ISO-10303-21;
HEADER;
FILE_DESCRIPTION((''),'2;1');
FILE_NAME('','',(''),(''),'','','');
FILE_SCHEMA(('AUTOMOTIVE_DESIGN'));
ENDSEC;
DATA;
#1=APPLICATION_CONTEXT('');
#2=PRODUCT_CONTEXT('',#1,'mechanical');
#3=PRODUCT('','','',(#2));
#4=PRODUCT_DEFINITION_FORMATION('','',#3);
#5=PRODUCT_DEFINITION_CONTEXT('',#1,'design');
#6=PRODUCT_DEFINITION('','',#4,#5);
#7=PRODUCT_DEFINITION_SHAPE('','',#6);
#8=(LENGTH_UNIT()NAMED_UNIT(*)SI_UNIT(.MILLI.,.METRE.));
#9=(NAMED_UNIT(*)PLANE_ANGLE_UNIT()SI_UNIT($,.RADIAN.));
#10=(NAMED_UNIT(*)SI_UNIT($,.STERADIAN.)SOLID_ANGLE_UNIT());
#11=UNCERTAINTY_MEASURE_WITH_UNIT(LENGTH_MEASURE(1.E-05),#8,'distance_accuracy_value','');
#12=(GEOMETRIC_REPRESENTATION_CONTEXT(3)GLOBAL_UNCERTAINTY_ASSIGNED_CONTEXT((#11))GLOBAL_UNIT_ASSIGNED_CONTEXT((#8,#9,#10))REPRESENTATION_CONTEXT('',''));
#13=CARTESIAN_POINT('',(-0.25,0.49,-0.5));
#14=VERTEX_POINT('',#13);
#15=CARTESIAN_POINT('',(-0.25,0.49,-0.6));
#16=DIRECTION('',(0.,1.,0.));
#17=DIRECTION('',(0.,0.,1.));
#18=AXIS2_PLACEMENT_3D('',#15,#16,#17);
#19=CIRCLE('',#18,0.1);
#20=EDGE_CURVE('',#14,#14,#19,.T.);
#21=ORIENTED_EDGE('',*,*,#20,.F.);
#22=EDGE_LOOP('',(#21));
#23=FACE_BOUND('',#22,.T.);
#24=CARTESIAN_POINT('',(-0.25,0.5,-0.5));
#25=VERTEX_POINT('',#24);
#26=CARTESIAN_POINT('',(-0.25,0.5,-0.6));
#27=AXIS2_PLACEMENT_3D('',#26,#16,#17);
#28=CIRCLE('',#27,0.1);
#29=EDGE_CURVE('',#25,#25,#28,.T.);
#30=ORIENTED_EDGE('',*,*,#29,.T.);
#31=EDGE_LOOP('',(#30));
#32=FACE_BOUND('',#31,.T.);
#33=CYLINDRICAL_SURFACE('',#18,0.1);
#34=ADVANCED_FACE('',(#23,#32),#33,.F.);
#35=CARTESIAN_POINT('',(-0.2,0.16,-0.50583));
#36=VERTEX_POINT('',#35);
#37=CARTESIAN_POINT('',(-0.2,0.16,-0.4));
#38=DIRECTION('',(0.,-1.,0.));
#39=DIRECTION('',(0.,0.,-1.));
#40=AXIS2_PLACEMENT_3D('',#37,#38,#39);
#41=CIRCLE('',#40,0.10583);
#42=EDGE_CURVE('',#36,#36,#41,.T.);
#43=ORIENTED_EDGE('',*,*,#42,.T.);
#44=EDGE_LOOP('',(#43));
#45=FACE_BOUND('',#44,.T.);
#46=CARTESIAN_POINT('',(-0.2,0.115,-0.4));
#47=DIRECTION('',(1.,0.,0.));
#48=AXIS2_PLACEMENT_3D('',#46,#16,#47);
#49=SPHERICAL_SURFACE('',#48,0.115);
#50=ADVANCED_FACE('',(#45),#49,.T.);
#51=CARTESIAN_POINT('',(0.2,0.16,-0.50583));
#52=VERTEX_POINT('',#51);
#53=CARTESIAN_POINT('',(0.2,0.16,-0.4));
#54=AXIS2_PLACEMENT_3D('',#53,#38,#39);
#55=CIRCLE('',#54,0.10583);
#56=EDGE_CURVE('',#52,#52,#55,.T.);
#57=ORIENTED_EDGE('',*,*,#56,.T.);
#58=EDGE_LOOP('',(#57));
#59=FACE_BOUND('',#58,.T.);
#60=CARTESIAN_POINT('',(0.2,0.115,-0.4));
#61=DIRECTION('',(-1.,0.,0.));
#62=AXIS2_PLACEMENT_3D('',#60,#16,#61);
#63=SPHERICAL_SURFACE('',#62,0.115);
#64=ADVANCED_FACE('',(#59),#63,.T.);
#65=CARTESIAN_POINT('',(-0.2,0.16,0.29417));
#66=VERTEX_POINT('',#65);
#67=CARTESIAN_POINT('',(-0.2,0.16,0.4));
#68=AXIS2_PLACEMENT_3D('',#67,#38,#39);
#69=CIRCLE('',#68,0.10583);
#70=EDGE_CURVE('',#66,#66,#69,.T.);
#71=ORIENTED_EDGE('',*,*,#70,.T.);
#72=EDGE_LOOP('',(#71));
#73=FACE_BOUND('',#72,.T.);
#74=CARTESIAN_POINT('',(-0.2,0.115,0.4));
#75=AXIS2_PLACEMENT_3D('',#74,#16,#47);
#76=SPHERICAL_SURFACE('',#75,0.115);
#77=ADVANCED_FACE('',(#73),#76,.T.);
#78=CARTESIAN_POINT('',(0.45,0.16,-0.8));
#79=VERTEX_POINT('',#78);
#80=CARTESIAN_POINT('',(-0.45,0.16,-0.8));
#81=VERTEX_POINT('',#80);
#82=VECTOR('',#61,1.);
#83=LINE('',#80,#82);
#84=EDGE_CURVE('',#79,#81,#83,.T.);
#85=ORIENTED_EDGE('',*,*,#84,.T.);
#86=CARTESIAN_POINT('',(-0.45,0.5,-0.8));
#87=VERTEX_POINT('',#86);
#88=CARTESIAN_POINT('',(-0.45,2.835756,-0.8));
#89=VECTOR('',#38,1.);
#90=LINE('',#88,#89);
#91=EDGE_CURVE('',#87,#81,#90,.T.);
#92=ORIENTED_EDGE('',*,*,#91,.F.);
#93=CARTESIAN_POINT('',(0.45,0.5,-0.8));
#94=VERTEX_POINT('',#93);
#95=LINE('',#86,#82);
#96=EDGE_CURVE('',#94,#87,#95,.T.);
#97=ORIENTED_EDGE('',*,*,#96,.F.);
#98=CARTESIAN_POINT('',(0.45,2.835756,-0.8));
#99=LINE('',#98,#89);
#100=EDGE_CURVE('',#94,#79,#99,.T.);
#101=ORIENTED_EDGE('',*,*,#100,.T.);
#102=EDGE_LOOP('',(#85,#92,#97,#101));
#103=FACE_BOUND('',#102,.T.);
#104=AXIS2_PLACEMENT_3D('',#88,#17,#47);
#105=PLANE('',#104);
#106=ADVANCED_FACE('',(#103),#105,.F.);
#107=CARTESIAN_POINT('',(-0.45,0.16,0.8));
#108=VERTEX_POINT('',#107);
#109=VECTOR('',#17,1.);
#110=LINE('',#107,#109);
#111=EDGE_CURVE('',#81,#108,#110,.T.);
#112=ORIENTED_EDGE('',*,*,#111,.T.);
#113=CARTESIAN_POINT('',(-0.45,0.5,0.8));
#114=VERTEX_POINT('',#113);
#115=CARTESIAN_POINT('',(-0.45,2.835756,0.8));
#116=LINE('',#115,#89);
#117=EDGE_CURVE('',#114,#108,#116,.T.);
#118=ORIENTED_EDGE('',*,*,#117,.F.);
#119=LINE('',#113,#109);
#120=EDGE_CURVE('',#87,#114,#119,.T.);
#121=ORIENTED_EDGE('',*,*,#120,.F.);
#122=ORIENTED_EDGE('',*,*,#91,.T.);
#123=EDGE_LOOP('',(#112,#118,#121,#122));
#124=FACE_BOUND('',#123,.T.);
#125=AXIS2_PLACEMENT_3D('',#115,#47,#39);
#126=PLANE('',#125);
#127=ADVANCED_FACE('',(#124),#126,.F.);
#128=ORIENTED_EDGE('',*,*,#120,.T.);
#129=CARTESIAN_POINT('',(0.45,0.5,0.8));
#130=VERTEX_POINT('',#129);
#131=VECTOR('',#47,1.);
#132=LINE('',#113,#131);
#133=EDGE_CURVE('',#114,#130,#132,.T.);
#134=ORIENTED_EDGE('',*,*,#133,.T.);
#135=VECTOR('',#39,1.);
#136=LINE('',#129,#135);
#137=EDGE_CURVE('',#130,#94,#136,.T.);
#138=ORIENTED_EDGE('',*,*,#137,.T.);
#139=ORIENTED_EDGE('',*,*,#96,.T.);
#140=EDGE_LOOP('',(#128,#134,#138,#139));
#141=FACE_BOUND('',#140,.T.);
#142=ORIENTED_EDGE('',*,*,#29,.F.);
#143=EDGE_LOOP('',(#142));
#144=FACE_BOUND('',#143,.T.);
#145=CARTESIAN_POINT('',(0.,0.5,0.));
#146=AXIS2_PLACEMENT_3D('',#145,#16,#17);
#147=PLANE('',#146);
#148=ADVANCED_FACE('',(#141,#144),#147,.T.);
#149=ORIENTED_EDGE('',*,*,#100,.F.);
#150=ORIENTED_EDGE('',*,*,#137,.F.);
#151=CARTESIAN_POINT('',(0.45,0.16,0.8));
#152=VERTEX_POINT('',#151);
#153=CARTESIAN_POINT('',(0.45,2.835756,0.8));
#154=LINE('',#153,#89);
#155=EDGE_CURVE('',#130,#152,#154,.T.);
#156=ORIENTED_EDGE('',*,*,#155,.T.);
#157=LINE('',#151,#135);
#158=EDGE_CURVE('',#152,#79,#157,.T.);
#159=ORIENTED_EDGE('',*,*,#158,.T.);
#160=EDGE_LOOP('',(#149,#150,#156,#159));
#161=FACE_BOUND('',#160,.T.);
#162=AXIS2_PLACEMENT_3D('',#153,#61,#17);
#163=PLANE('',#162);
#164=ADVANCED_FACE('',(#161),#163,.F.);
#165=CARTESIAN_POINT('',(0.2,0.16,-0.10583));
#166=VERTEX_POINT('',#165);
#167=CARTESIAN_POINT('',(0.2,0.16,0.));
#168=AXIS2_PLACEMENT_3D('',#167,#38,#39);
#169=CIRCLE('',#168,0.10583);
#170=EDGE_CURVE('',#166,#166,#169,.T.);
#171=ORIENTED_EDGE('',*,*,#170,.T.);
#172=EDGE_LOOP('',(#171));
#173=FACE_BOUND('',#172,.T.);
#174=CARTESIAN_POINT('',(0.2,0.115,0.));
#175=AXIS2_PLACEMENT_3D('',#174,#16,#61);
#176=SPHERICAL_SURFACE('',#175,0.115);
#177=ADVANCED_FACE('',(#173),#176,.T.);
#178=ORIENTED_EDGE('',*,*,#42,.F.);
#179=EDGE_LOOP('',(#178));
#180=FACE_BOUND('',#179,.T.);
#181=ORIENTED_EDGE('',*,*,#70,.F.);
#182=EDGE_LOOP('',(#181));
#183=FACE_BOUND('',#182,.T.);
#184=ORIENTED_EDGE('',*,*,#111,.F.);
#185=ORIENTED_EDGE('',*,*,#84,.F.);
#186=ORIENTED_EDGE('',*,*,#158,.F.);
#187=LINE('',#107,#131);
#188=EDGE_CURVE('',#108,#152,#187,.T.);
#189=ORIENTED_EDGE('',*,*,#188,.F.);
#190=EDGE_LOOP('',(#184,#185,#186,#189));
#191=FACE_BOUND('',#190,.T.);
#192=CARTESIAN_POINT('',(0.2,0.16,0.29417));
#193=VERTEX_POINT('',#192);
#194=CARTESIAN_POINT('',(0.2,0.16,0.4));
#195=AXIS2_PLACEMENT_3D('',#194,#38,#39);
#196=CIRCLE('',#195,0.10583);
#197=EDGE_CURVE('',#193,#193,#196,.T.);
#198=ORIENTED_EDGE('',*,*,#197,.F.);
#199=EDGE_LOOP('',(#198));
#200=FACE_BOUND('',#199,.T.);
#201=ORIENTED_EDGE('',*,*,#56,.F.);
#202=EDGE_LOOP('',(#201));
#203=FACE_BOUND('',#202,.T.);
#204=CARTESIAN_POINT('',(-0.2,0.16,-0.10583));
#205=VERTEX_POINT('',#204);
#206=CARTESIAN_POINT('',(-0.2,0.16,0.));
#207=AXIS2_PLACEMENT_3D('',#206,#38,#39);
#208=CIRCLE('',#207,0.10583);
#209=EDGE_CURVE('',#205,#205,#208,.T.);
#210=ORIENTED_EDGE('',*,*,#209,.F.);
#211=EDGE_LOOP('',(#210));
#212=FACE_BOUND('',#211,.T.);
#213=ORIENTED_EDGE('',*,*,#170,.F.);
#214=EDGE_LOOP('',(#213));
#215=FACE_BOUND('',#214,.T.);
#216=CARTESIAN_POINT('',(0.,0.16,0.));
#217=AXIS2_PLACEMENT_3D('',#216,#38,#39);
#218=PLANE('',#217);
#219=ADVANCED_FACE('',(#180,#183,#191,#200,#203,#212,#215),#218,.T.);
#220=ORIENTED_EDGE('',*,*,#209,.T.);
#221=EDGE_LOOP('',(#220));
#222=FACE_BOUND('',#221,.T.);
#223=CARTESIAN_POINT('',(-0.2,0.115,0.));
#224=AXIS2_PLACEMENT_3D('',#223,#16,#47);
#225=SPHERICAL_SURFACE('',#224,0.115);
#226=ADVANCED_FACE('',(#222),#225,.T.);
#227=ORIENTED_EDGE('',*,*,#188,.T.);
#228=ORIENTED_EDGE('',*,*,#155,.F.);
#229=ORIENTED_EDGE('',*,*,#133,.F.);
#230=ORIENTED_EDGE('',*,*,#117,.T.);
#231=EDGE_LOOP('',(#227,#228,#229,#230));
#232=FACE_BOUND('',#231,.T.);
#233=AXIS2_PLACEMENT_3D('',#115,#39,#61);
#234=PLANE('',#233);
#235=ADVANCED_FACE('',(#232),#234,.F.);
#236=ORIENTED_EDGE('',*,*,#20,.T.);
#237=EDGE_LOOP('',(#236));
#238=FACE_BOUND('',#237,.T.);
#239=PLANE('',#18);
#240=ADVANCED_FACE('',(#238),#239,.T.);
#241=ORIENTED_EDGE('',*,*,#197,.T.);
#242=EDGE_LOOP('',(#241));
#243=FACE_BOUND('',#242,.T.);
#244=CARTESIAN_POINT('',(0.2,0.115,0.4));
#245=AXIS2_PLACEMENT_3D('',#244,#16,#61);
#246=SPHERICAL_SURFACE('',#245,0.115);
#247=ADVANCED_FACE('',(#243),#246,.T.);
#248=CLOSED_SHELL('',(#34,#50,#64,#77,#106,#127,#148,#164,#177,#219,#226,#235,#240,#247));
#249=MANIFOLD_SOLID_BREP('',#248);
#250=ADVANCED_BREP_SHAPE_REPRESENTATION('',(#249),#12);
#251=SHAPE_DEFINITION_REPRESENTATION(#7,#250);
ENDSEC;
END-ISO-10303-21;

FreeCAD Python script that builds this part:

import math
import FreeCAD as App
import Part
import Sketcher
from FreeCAD import Vector


def add_polygon(sketch, points):
    """Adds a closed chain of lines whose ends are joined by coincident constraints."""
    first, n = sketch.GeometryCount, len(points)
    for a, b in zip(points, points[1:] + points[:1]):
        sketch.addGeometry(Part.LineSegment(App.Vector(*a, 0), App.Vector(*b, 0)), False)
    for i in range(n):
        sketch.addConstraint(Sketcher.Constraint("Coincident", first + i, 2, first + (i + 1) % n, 1))

doc = App.newDocument("Part")
body = doc.addObject("PartDesign::Body", "Body")

# Sketch on XZ plane
sketch1 = body.newObject("Sketcher::SketchObject", "Sketch")
sketch1.AttachmentSupport = (doc.getObject("XZ_Plane"), [""])
sketch1.MapMode = "FlatFace"
sketch1.AttachmentOffset = App.Placement(Vector(0, 0, -0.16), App.Rotation())
add_polygon(sketch1, [(-0.5, -0.8), (-0.5, 0.8), (0.5, 0.8), (0.5, -0.8)])  # lines 0-3
sketch1.addConstraint(Sketcher.Constraint("Vertical", 0))
sketch1.addConstraint(Sketcher.Constraint("Horizontal", 1))
sketch1.addConstraint(Sketcher.Constraint("Vertical", 2))
sketch1.addConstraint(Sketcher.Constraint("Horizontal", 3))
sketch1.addConstraint(Sketcher.Constraint("Symmetric", 0, 2, 2, 2, -1, 1))
sketch1.addConstraint(Sketcher.Constraint("DistanceX", 1, 1, 1, 2, 0.9))
sketch1.addConstraint(Sketcher.Constraint("DistanceY", 0, 1, 0, 2, 1.6))
pad1 = body.newObject("PartDesign::Pad", "Pad")
pad1.Profile = sketch1
pad1.Length = 0.34
pad1.Reversed = True

# Sketch on XZ plane
sketch2 = body.newObject("Sketcher::SketchObject", "Sketch001")
sketch2.AttachmentSupport = (doc.getObject("XZ_Plane"), [""])
sketch2.MapMode = "FlatFace"
sketch2.AttachmentOffset = App.Placement(Vector(0, 0, -0.5), App.Rotation())
sketch2.addGeometry(Part.Circle(Vector(-0.25, -0.6, 0), Vector(0, 0, 1), 0.1), False)
sketch2.addConstraint(Sketcher.Constraint("Diameter", 0, 0.2))
sketch2.addConstraint(Sketcher.Constraint("DistanceY", 0, 3, -1, 1, 0.6))
sketch2.addConstraint(Sketcher.Constraint("DistanceX", 0, 3, -1, 1, 0.25))
pocket1 = body.newObject("PartDesign::Pocket", "Pocket")
pocket1.Profile = sketch2
pocket1.Length = 0.01
pocket1.Reversed = True

# Sketch on XY plane
sketch3 = body.newObject("Sketcher::SketchObject", "Sketch002")
sketch3.AttachmentSupport = (doc.getObject("XY_Plane"), [""])
sketch3.MapMode = "FlatFace"
sketch3.addGeometry(Part.LineSegment(Vector(-0.2, 0, 0), Vector(-0.2, 0.23, 0)), False)
sketch3.addGeometry(Part.ArcOfCircle(Part.Circle(Vector(-0.2, 0.12, 0), Vector(0, 0, 1), 0.12), math.radians(90), math.radians(270)), False)
sketch3.addGeometry(Part.LineSegment(Vector(-0.2, 0.23, 0), Vector(-0.2, 0, 0)), True)  # axis
sketch3.addConstraint(Sketcher.Constraint("Coincident", 0, 1, 1, 2))
sketch3.addConstraint(Sketcher.Constraint("Coincident", 1, 1, 0, 2))
sketch3.addConstraint(Sketcher.Constraint("Vertical", 0))
sketch3.addConstraint(Sketcher.Constraint("Vertical", 2))
sketch3.addConstraint(Sketcher.Constraint("Coincident", 2, 1, 1, 1))
sketch3.addConstraint(Sketcher.Constraint("PointOnObject", 0, 1, -1))
sketch3.addConstraint(Sketcher.Constraint("PointOnObject", 2, 2, -1))
sketch3.addConstraint(Sketcher.Constraint("Vertical", 1, 3, 0, 1))
sketch3.addConstraint(Sketcher.Constraint("Radius", 1, 0.115))
sketch3.addConstraint(Sketcher.Constraint("DistanceX", 1, 3, -1, 1, 0.2))
revolution = body.newObject("PartDesign::Revolution", "Revolution")
revolution.Profile = sketch3
revolution.ReferenceAxis = (sketch3, ["Axis0"])
revolution.Angle = 360
doc.recompute()

linearpattern = body.newObject("PartDesign::LinearPattern", "LinearPattern")
linearpattern.Originals = [revolution]
linearpattern.Direction = (doc.getObject("Z_Axis"), [""])
linearpattern.Mode = "offset"
linearpattern.Offset = 0.4
linearpattern.Occurrences = 2
linearpattern.Reversed = True
body.Tip = linearpattern
doc.recompute()

linearpattern2 = body.newObject("PartDesign::LinearPattern", "LinearPattern001")
linearpattern2.Originals = [revolution]
linearpattern2.Direction = (doc.getObject("Z_Axis"), [""])
linearpattern2.Mode = "offset"
linearpattern2.Offset = 0.4
linearpattern2.Occurrences = 2
body.Tip = linearpattern2
doc.recompute()

mirrored = body.newObject("PartDesign::Mirrored", "Mirrored")
mirrored.Originals = [revolution]
mirrored.MirrorPlane = (doc.getObject("YZ_Plane"), [""])
body.Tip = mirrored

# Sketch on XY plane
sketch4 = body.newObject("Sketcher::SketchObject", "Sketch003")
sketch4.AttachmentSupport = (doc.getObject("XY_Plane"), [""])
sketch4.MapMode = "FlatFace"
sketch4.AttachmentOffset = App.Placement(Vector(0, 0, -0.4), App.Rotation())
sketch4.addGeometry(Part.LineSegment(Vector(0.2, 0.23, 0), Vector(0.2, 0, 0)), False)
sketch4.addGeometry(Part.ArcOfCircle(Part.Circle(Vector(0.2, 0.12, 0), Vector(0, 0, 1), 0.12), math.radians(-90), math.radians(90)), False)
sketch4.addGeometry(Part.LineSegment(Vector(0.2, 0, 0), Vector(0.2, 0.23, 0)), True)  # axis
sketch4.addConstraint(Sketcher.Constraint("Coincident", 0, 1, 1, 2))
sketch4.addConstraint(Sketcher.Constraint("Coincident", 1, 1, 0, 2))
sketch4.addConstraint(Sketcher.Constraint("Vertical", 0))
sketch4.addConstraint(Sketcher.Constraint("Vertical", 2))
sketch4.addConstraint(Sketcher.Constraint("Coincident", 2, 1, 1, 1))
sketch4.addConstraint(Sketcher.Constraint("PointOnObject", 1, 1, -1))
sketch4.addConstraint(Sketcher.Constraint("Vertical", 1, 3, 0, 1))
sketch4.addConstraint(Sketcher.Constraint("Equal", 0, 2))
sketch4.addConstraint(Sketcher.Constraint("Radius", 1, 0.115))
sketch4.addConstraint(Sketcher.Constraint("DistanceX", -1, 1, 1, 3, 0.2))
revolution2 = body.newObject("PartDesign::Revolution", "Revolution001")
revolution2.Profile = sketch4
revolution2.ReferenceAxis = (sketch4, ["Axis0"])
revolution2.Angle = 360

# Sketch on XY plane
sketch5 = body.newObject("Sketcher::SketchObject", "Sketch004")
sketch5.AttachmentSupport = (doc.getObject("XY_Plane"), [""])
sketch5.MapMode = "FlatFace"
sketch5.AttachmentOffset = App.Placement(Vector(0, 0, 0.4), App.Rotation())
sketch5.addGeometry(Part.LineSegment(Vector(0.2, 0.23, 0), Vector(0.2, 0, 0)), False)
sketch5.addGeometry(Part.ArcOfCircle(Part.Circle(Vector(0.2, 0.12, 0), Vector(0, 0, 1), 0.12), math.radians(-90), math.radians(90)), False)
sketch5.addGeometry(Part.LineSegment(Vector(0.2, 0, 0), Vector(0.2, 0.23, 0)), True)  # axis
sketch5.addConstraint(Sketcher.Constraint("Coincident", 0, 1, 1, 2))
sketch5.addConstraint(Sketcher.Constraint("Coincident", 1, 1, 0, 2))
sketch5.addConstraint(Sketcher.Constraint("Vertical", 0))
sketch5.addConstraint(Sketcher.Constraint("Vertical", 2))
sketch5.addConstraint(Sketcher.Constraint("Coincident", 2, 1, 1, 1))
sketch5.addConstraint(Sketcher.Constraint("PointOnObject", 1, 1, -1))
sketch5.addConstraint(Sketcher.Constraint("Vertical", 1, 3, 0, 1))
sketch5.addConstraint(Sketcher.Constraint("Equal", 0, 2))
sketch5.addConstraint(Sketcher.Constraint("Radius", 1, 0.115))
sketch5.addConstraint(Sketcher.Constraint("DistanceX", -1, 1, 1, 3, 0.2))
revolution3 = body.newObject("PartDesign::Revolution", "Revolution002")
revolution3.Profile = sketch5
revolution3.ReferenceAxis = (sketch5, ["Axis0"])
revolution3.Angle = 360

doc.recompute()
